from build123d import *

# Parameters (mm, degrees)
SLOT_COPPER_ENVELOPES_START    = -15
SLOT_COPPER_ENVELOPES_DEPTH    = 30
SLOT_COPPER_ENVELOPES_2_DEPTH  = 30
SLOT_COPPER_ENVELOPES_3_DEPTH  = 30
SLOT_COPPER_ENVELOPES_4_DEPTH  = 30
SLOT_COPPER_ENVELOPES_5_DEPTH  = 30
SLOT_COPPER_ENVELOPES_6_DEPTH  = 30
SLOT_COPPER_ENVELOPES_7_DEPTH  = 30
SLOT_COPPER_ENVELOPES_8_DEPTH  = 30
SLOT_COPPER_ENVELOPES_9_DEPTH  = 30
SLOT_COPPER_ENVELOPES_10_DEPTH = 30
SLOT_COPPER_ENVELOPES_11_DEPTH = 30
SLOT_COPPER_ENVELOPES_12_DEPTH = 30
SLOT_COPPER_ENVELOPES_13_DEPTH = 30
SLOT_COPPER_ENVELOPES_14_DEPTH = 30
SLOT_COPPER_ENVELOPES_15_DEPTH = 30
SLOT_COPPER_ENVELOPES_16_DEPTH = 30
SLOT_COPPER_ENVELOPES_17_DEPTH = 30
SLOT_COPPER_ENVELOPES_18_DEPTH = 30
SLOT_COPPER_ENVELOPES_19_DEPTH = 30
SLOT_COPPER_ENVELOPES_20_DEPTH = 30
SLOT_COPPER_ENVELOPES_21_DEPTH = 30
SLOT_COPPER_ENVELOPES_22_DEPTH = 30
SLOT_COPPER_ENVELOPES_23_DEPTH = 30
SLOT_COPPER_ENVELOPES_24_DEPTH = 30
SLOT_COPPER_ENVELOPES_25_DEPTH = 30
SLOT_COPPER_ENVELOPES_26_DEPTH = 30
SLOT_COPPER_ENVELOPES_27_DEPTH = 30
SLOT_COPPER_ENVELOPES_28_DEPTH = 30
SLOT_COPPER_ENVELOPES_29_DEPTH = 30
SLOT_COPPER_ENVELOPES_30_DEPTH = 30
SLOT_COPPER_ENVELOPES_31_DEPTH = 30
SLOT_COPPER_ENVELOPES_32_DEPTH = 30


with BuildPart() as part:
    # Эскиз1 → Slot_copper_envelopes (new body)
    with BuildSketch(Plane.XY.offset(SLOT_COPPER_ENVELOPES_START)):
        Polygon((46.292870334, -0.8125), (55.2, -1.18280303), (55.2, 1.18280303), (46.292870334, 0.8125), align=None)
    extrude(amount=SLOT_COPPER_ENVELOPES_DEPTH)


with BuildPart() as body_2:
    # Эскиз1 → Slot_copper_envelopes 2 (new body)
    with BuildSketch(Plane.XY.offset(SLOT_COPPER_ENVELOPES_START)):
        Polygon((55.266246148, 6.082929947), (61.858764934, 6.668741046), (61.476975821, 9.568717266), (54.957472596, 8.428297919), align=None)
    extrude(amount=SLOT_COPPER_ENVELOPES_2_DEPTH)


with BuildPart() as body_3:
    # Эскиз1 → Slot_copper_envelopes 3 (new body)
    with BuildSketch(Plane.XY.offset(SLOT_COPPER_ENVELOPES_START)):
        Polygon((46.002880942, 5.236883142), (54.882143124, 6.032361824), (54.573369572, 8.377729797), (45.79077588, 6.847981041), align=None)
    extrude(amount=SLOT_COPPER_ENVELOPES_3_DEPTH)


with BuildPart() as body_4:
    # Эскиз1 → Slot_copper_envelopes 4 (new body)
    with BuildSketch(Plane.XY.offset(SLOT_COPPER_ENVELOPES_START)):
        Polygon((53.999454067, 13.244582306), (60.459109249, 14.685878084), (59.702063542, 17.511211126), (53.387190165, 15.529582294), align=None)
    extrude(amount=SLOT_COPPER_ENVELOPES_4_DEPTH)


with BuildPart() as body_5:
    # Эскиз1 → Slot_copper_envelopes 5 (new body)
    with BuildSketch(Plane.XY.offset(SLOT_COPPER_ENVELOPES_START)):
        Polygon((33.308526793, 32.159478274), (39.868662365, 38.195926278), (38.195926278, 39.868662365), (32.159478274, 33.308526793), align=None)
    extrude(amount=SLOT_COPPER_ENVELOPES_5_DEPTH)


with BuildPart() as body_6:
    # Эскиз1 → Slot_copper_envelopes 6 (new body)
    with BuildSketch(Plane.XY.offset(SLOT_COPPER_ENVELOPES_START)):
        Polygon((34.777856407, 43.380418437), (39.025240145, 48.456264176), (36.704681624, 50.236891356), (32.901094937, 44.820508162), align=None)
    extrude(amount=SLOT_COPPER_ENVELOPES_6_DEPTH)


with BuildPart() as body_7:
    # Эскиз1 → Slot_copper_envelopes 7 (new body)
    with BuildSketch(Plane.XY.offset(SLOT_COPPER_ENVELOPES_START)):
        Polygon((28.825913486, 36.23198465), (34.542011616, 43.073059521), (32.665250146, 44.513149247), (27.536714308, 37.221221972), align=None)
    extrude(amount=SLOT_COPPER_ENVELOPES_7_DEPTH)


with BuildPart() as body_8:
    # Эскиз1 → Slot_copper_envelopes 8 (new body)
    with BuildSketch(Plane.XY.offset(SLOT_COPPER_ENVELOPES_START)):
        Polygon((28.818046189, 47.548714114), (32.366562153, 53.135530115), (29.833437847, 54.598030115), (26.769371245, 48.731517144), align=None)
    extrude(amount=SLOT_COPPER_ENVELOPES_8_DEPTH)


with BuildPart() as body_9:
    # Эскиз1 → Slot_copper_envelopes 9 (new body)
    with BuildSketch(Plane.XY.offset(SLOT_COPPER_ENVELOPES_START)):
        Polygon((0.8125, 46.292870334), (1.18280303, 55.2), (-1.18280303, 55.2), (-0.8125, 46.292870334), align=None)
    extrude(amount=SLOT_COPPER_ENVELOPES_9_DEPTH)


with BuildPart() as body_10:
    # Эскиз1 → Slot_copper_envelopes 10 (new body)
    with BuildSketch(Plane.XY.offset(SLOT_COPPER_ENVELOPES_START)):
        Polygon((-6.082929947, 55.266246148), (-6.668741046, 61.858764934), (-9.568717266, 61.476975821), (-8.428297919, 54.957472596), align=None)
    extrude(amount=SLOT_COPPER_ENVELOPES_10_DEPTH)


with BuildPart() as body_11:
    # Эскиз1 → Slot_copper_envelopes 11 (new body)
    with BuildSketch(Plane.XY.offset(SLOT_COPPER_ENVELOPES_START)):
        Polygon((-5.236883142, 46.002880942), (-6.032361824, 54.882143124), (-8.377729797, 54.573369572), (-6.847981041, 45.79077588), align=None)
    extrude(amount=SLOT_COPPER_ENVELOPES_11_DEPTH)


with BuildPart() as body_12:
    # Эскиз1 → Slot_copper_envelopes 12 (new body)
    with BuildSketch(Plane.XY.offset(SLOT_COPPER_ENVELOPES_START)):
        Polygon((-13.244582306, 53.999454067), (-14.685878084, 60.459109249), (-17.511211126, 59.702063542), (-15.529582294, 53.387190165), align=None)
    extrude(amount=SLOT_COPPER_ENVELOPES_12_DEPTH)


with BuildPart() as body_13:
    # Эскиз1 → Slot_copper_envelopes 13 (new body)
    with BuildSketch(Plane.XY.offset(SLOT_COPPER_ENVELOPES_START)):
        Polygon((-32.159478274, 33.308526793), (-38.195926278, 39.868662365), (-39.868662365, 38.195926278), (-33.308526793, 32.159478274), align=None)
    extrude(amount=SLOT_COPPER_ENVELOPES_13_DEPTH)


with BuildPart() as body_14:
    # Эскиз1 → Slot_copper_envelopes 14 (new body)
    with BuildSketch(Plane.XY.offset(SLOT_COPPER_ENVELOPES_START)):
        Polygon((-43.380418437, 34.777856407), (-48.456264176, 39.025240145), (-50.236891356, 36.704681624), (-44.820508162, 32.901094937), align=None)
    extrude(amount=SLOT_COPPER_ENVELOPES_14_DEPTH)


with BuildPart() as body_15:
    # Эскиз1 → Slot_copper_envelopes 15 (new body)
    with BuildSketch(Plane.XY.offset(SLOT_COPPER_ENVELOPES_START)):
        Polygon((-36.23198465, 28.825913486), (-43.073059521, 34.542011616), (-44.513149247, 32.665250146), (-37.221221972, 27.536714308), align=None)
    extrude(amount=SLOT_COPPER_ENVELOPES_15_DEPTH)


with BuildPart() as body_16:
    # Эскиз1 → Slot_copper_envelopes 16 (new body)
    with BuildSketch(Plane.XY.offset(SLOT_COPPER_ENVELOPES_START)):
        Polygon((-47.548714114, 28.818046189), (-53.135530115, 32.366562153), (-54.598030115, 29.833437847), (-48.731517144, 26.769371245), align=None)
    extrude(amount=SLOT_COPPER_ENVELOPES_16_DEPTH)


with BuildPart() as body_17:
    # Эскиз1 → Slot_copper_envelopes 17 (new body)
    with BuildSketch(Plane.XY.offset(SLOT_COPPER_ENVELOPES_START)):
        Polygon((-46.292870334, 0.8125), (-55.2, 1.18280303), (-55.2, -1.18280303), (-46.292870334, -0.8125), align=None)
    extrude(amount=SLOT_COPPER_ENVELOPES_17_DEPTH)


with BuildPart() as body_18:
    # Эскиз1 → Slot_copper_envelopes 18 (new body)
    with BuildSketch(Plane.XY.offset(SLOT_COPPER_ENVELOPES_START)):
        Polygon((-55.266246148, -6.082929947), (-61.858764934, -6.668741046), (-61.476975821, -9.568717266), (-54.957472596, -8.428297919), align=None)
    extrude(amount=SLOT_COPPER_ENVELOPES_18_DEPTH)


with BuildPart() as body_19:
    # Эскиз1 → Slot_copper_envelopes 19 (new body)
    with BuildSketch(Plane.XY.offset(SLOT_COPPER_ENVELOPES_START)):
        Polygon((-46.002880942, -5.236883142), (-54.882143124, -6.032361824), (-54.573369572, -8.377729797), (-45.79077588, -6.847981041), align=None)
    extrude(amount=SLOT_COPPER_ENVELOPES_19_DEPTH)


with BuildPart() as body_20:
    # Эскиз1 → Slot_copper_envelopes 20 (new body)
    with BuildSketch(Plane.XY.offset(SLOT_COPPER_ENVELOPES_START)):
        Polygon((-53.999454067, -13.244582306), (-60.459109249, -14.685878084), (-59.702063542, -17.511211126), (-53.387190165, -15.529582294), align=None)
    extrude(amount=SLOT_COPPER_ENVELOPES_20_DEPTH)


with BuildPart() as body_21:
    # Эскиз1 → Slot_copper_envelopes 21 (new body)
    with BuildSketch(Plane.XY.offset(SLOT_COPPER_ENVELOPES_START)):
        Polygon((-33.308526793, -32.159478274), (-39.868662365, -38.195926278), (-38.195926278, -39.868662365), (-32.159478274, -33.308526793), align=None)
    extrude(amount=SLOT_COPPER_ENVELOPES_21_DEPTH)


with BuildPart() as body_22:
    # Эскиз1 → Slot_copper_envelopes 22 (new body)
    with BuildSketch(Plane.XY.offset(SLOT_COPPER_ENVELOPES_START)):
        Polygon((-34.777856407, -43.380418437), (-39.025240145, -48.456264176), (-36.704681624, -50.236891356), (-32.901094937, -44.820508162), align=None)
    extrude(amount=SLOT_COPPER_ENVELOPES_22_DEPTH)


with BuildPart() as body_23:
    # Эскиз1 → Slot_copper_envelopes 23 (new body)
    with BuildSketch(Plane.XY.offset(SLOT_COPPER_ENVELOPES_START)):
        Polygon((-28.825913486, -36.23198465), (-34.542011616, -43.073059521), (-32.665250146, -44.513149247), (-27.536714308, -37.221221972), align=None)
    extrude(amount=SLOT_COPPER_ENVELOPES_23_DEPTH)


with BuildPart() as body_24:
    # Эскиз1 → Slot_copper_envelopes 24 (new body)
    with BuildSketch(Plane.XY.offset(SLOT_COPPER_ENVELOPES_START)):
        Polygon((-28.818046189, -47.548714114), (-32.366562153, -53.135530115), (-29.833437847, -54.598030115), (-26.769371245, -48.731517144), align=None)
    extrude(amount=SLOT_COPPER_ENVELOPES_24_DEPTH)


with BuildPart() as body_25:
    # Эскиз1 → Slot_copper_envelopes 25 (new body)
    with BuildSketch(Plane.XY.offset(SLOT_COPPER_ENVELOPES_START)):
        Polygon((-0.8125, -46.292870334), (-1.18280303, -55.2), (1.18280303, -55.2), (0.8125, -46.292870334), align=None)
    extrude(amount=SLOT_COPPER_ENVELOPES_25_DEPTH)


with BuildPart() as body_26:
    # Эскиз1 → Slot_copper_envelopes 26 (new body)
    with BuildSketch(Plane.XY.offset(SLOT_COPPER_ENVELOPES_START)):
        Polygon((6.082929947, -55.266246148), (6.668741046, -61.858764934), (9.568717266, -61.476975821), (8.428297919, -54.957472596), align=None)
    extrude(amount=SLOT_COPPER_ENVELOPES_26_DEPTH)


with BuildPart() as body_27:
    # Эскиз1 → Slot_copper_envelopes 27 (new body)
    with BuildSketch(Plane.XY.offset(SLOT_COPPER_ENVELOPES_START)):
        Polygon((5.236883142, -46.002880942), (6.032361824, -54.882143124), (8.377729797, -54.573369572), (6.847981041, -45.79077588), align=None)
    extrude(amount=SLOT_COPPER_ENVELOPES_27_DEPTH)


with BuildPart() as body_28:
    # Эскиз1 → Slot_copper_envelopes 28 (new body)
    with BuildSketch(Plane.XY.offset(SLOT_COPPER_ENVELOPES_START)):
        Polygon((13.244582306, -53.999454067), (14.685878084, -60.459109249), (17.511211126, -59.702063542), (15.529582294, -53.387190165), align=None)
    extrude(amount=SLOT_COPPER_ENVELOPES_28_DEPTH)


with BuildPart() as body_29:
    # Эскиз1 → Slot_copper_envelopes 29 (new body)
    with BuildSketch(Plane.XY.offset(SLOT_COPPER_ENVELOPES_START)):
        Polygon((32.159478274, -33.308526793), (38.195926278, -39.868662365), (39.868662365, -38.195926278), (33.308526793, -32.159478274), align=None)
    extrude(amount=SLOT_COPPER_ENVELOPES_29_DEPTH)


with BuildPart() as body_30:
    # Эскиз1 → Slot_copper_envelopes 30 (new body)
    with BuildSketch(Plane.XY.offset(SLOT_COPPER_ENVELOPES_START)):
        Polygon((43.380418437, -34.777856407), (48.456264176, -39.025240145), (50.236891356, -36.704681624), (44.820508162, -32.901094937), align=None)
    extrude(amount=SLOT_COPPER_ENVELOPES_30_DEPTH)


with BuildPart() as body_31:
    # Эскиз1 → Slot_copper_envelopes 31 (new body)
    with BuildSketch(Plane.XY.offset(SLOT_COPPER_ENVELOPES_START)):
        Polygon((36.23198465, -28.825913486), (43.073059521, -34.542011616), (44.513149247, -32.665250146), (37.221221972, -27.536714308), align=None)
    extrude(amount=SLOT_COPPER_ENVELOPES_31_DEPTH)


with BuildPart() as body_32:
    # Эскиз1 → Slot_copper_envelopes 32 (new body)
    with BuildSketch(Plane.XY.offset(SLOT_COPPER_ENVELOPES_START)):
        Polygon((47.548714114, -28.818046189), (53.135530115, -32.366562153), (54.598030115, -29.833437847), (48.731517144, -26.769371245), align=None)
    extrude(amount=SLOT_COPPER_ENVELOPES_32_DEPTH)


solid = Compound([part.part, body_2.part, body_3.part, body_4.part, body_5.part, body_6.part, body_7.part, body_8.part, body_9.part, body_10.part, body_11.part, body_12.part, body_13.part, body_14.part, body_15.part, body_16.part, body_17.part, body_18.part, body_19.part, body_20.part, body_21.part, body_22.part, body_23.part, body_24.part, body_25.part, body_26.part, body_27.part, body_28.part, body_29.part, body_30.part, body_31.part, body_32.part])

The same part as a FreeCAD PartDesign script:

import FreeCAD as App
import Part
import Sketcher

V = App.Vector
Q = App.Units.Quantity


def add_polygon(sketch, points):
    """Adds a closed chain of lines whose ends are joined by coincident constraints."""
    first, n = sketch.GeometryCount, len(points)
    for a, b in zip(points, points[1:] + points[:1]):
        sketch.addGeometry(Part.LineSegment(App.Vector(*a, 0), App.Vector(*b, 0)), False)
    for i in range(n):
        sketch.addConstraint(Sketcher.Constraint("Coincident", first + i, 2, first + (i + 1) % n, 1))

doc = App.newDocument("Part")
body = doc.addObject("PartDesign::Body", "Body")

sketch1 = doc.addObject("Sketcher::SketchObject", "Sketch")
body.addObject(sketch1)
sketch1.AttachmentSupport = (doc.XY_Plane, [""])
sketch1.MapMode = "FlatFace"
sketch1.AttachmentOffset = App.Placement(V(0, 0, -15), App.Rotation())
add_polygon(sketch1, [(46.3, -0.8), (55.2, -1.2), (55.2, 1.2), (46.3, 0.8)])
sketch1.addConstraint([
    Sketcher.Constraint("Vertical", 1),
    Sketcher.Constraint("Vertical", 3),
    Sketcher.Constraint("Equal", 0, 2),
    Sketcher.Constraint("DistanceX", -1, 1, 0, 2, 55.2),
    Sketcher.Constraint("DistanceY", 3, 2, 3, 1, 1.625),
    Sketcher.Constraint("DistanceY", -1, 1, 2, 2, 0.8125),
    Sketcher.Constraint("DistanceY", 1, 1, 1, 2, 2.365606),
    Sketcher.Constraint("DistanceX", -1, 1, 2, 2, 46.29287),
])
pad1 = doc.addObject("PartDesign::Pad", "Pad")
body.addObject(pad1)
pad1.Profile = sketch1
pad1.Length = 30
body2 = doc.addObject("PartDesign::Body", "Body001")

sketch2 = doc.addObject("Sketcher::SketchObject", "Sketch001")
body2.addObject(sketch2)
sketch2.AttachmentSupport = (doc.getObject("XY_Plane001"), [""])
sketch2.MapMode = "FlatFace"
sketch2.AttachmentOffset = App.Placement(V(0, 0, -15), App.Rotation())
add_polygon(sketch2, [(55.3, 6.1), (61.9, 6.7), (61.5, 9.6), (55, 8.4)])
sketch2.addConstraint([
    Sketcher.Constraint("Parallel", 1, 3),
    Sketcher.Constraint("Equal", 0, 2),
    Sketcher.Constraint("Angle", 1, Q("97.5 deg")),
    Sketcher.Constraint("Distance", 1, 2.925),
    Sketcher.Constraint("DistanceY", -1, 1, 0, 2, 6.668741),
    Sketcher.Constraint("DistanceY", -1, 1, 3, 2, 6.08293),
    Sketcher.Constraint("DistanceY", 2, 2, 1, 2, 1.140419),
    Sketcher.Constraint("DistanceX", -1, 1, 0, 2, 61.858765),
])
pad2 = doc.addObject("PartDesign::Pad", "Pad001")
body2.addObject(pad2)
pad2.Profile = sketch2
pad2.Length = 30
body3 = doc.addObject("PartDesign::Body", "Body002")

sketch3 = doc.addObject("Sketcher::SketchObject", "Sketch002")
body3.addObject(sketch3)
sketch3.AttachmentSupport = (doc.getObject("XY_Plane002"), [""])
sketch3.MapMode = "FlatFace"
sketch3.AttachmentOffset = App.Placement(V(0, 0, -15), App.Rotation())
add_polygon(sketch3, [(46, 5.2), (54.9, 6), (54.6, 8.4), (45.8, 6.8)])
sketch3.addConstraint([
    Sketcher.Constraint("Parallel", 1, 3),
    Sketcher.Constraint("Equal", 0, 2),
    Sketcher.Constraint("Angle", 1, Q("97.5 deg")),
    Sketcher.Constraint("Distance", 3, 1.625),
    Sketcher.Constraint("DistanceY", -1, 1, 0, 2, 6.032362),
    Sketcher.Constraint("DistanceX", -1, 1, 1, 2, 54.57337),
    Sketcher.Constraint("DistanceY", -1, 1, 1, 2, 8.37773),
    Sketcher.Constraint("DistanceY", -1, 1, 2, 2, 6.847981),
])
pad3 = doc.addObject("PartDesign::Pad", "Pad002")
body3.addObject(pad3)
pad3.Profile = sketch3
pad3.Length = 30
body4 = doc.addObject("PartDesign::Body", "Body003")

sketch4 = doc.addObject("Sketcher::SketchObject", "Sketch003")
body4.addObject(sketch4)
sketch4.AttachmentSupport = (doc.getObject("XY_Plane003"), [""])
sketch4.MapMode = "FlatFace"
sketch4.AttachmentOffset = App.Placement(V(0, 0, -15), App.Rotation())
add_polygon(sketch4, [(54, 13.2), (60.5, 14.7), (59.7, 17.5), (53.4, 15.5)])
sketch4.addConstraint([
    Sketcher.Constraint("Parallel", 1, 3),
    Sketcher.Constraint("Equal", 0, 2),
    Sketcher.Constraint("Angle", 1, Q("105 deg")),
    Sketcher.Constraint("Distance", 1, 2.925),
    Sketcher.Constraint("DistanceY", 3, 2, 2, 2, 2.285),
    Sketcher.Constraint("DistanceX", -1, 1, 0, 2, 60.459109),
    Sketcher.Constraint("DistanceY", -1, 1, 0, 2, 14.685878),
    Sketcher.Constraint("DistanceX", -1, 1, 2, 2, 53.38719),
])
pad4 = doc.addObject("PartDesign::Pad", "Pad003")
body4.addObject(pad4)
pad4.Profile = sketch4
pad4.Length = 30
body5 = doc.addObject("PartDesign::Body", "Body004")

sketch5 = doc.addObject("Sketcher::SketchObject", "Sketch004")
body5.addObject(sketch5)
sketch5.AttachmentSupport = (doc.getObject("XY_Plane004"), [""])
sketch5.MapMode = "FlatFace"
sketch5.AttachmentOffset = App.Placement(V(0, 0, -15), App.Rotation())
add_polygon(sketch5, [(33.3, 32.2), (39.9, 38.2), (38.2, 39.9), (32.2, 33.3)])
sketch5.addConstraint([
    Sketcher.Constraint("Parallel", 1, 3),
    Sketcher.Constraint("Equal", 0, 2),
    Sketcher.Constraint("Angle", 1, Q("135 deg")),
    Sketcher.Constraint("Distance", 3, 1.625),
    Sketcher.Constraint("DistanceY", 2, 2, 0, 2, 4.887399),
    Sketcher.Constraint("DistanceX", -1, 1, 2, 2, 32.159478),
    Sketcher.Constraint("DistanceY", -1, 1, 3, 2, 32.159478),
    Sketcher.Constraint("Distance", 0, 8.914824),
])
pad5 = doc.addObject("PartDesign::Pad", "Pad004")
body5.addObject(pad5)
pad5.Profile = sketch5
pad5.Length = 30
body6 = doc.addObject("PartDesign::Body", "Body005")

sketch6 = doc.addObject("Sketcher::SketchObject", "Sketch005")
body6.addObject(sketch6)
sketch6.AttachmentSupport = (doc.getObject("XY_Plane005"), [""])
sketch6.MapMode = "FlatFace"
sketch6.AttachmentOffset = App.Placement(V(0, 0, -15), App.Rotation())
add_polygon(sketch6, [(34.8, 43.4), (39, 48.5), (36.7, 50.2), (32.9, 44.8)])
sketch6.addConstraint([
    Sketcher.Constraint("Parallel", 1, 3),
    Sketcher.Constraint("Equal", 0, 2),
    Sketcher.Constraint("Angle", 1, Q("142.5 deg")),
    Sketcher.Constraint("Distance", 1, 2.925),
    Sketcher.Constraint("DistanceX", -1, 1, 0, 2, 39.02524),
    Sketcher.Constraint("DistanceY", -1, 1, 1, 2, 50.236891),
    Sketcher.Constraint("DistanceY", -1, 1, 2, 2, 44.820508),
    Sketcher.Constraint("DistanceY", -1, 1, 3, 2, 43.380418),
])
pad6 = doc.addObject("PartDesign::Pad", "Pad005")
body6.addObject(pad6)
pad6.Profile = sketch6
pad6.Length = 30
body7 = doc.addObject("PartDesign::Body", "Body006")

sketch7 = doc.addObject("Sketcher::SketchObject", "Sketch006")
body7.addObject(sketch7)
sketch7.AttachmentSupport = (doc.getObject("XY_Plane006"), [""])
sketch7.MapMode = "FlatFace"
sketch7.AttachmentOffset = App.Placement(V(0, 0, -15), App.Rotation())
add_polygon(sketch7, [(28.8, 36.2), (34.5, 43.1), (32.7, 44.5), (27.5, 37.2)])
sketch7.addConstraint([
    Sketcher.Constraint("Parallel", 1, 3),
    Sketcher.Constraint("Equal", 0, 2),
    Sketcher.Constraint("Angle", 1, Q("142.5 deg")),
    Sketcher.Constraint("Distance", 3, 1.625),
    Sketcher.Constraint("DistanceX", 3, 2, 0, 2, 5.716098),
    Sketcher.Constraint("DistanceX", -1, 1, 0, 2, 34.542012),
    Sketcher.Constraint("DistanceY", -1, 1, 0, 2, 43.07306),
    Sketcher.Constraint("DistanceX", -1, 1, 1, 2, 32.66525),
])
pad7 = doc.addObject("PartDesign::Pad", "Pad006")
body7.addObject(pad7)
pad7.Profile = sketch7
pad7.Length = 30
body8 = doc.addObject("PartDesign::Body", "Body007")

sketch8 = doc.addObject("Sketcher::SketchObject", "Sketch007")
body8.addObject(sketch8)
sketch8.AttachmentSupport = (doc.getObject("XY_Plane007"), [""])
sketch8.MapMode = "FlatFace"
sketch8.AttachmentOffset = App.Placement(V(0, 0, -15), App.Rotation())
add_polygon(sketch8, [(28.8, 47.5), (32.4, 53.1), (29.8, 54.6), (26.8, 48.7)])
sketch8.addConstraint([
    Sketcher.Constraint("Parallel", 1, 3),
    Sketcher.Constraint("Equal", 0, 2),
    Sketcher.Constraint("Angle", 1, Q("150 deg")),
    Sketcher.Constraint("Distance", 1, 2.925),
    Sketcher.Constraint("DistanceY", -1, 1, 0, 2, 53.13553),
    Sketcher.Constraint("DistanceX", -1, 1, 2, 2, 26.769371),
    Sketcher.Constraint("DistanceX", 2, 2, 0, 2, 5.597191),
    Sketcher.Constraint("DistanceX", 3, 2, 1, 2, 1.015392),
])
pad8 = doc.addObject("PartDesign::Pad", "Pad007")
body8.addObject(pad8)
pad8.Profile = sketch8
pad8.Length = 30
body9 = doc.addObject("PartDesign::Body", "Body008")

sketch9 = doc.addObject("Sketcher::SketchObject", "Sketch008")
body9.addObject(sketch9)
sketch9.AttachmentSupport = (doc.getObject("XY_Plane008"), [""])
sketch9.MapMode = "FlatFace"
sketch9.AttachmentOffset = App.Placement(V(0, 0, -15), App.Rotation())
add_polygon(sketch9, [(0.8, 46.3), (1.2, 55.2), (-1.2, 55.2), (-0.8, 46.3)])
sketch9.addConstraint([
    Sketcher.Constraint("Horizontal", 1),
    Sketcher.Constraint("Horizontal", 3),
    Sketcher.Constraint("Equal", 0, 2),
    Sketcher.Constraint("DistanceY", -1, 1, 0, 2, 55.2),
    Sketcher.Constraint("DistanceX", 3, 1, 3, 2, 1.625),
    Sketcher.Constraint("DistanceX", 2, 2, -1, 1, 0.8125),
    Sketcher.Constraint("DistanceX", 1, 2, 1, 1, 2.365606),
    Sketcher.Constraint("DistanceY", -1, 1, 2, 2, 46.29287),
])
pad9 = doc.addObject("PartDesign::Pad", "Pad008")
body9.addObject(pad9)
pad9.Profile = sketch9
pad9.Length = 30
body10 = doc.addObject("PartDesign::Body", "Body009")

sketch10 = doc.addObject("Sketcher::SketchObject", "Sketch009")
body10.addObject(sketch10)
sketch10.AttachmentSupport = (doc.getObject("XY_Plane009"), [""])
sketch10.MapMode = "FlatFace"
sketch10.AttachmentOffset = App.Placement(V(0, 0, -15), App.Rotation())
add_polygon(sketch10, [(-6.1, 55.3), (-6.7, 61.9), (-9.6, 61.5), (-8.4, 55)])
sketch10.addConstraint([
    Sketcher.Constraint("Parallel", 1, 3),
    Sketcher.Constraint("Equal", 0, 2),
    Sketcher.Constraint("Angle", 1, Q("-172.5 deg")),
    Sketcher.Constraint("Distance", 1, 2.925),
    Sketcher.Constraint("DistanceX", 0, 2, -1, 1, 6.668741),
    Sketcher.Constraint("DistanceX", 3, 2, -1, 1, 6.08293),
    Sketcher.Constraint("DistanceX", 1, 2, 2, 2, 1.140419),
    Sketcher.Constraint("DistanceY", -1, 1, 0, 2, 61.858765),
])
pad10 = doc.addObject("PartDesign::Pad", "Pad009")
body10.addObject(pad10)
pad10.Profile = sketch10
pad10.Length = 30
body11 = doc.addObject("PartDesign::Body", "Body010")

sketch11 = doc.addObject("Sketcher::SketchObject", "Sketch010")
body11.addObject(sketch11)
sketch11.AttachmentSupport = (doc.getObject("XY_Plane010"), [""])
sketch11.MapMode = "FlatFace"
sketch11.AttachmentOffset = App.Placement(V(0, 0, -15), App.Rotation())
add_polygon(sketch11, [(-5.2, 46), (-6, 54.9), (-8.4, 54.6), (-6.8, 45.8)])
sketch11.addConstraint([
    Sketcher.Constraint("Parallel", 1, 3),
    Sketcher.Constraint("Equal", 0, 2),
    Sketcher.Constraint("Angle", 1, Q("-172.5 deg")),
    Sketcher.Constraint("Distance", 3, 1.625),
    Sketcher.Constraint("DistanceX", 0, 2, -1, 1, 6.032362),
    Sketcher.Constraint("DistanceX", 1, 2, -1, 1, 8.37773),
    Sketcher.Constraint("DistanceY", -1, 1, 1, 2, 54.57337),
    Sketcher.Constraint("DistanceX", 2, 2, -1, 1, 6.847981),
])
pad11 = doc.addObject("PartDesign::Pad", "Pad010")
body11.addObject(pad11)
pad11.Profile = sketch11
pad11.Length = 30
body12 = doc.addObject("PartDesign::Body", "Body011")

sketch12 = doc.addObject("Sketcher::SketchObject", "Sketch011")
body12.addObject(sketch12)
sketch12.AttachmentSupport = (doc.getObject("XY_Plane011"), [""])
sketch12.MapMode = "FlatFace"
sketch12.AttachmentOffset = App.Placement(V(0, 0, -15), App.Rotation())
add_polygon(sketch12, [(-13.2, 54), (-14.7, 60.5), (-17.5, 59.7), (-15.5, 53.4)])
sketch12.addConstraint([
    Sketcher.Constraint("Parallel", 1, 3),
    Sketcher.Constraint("Equal", 0, 2),
    Sketcher.Constraint("Angle", 1, Q("-165 deg")),
    Sketcher.Constraint("Distance", 1, 2.925),
    Sketcher.Constraint("DistanceX", 2, 2, 3, 2, 2.285),
    Sketcher.Constraint("DistanceX", 0, 2, -1, 1, 14.685878),
    Sketcher.Constraint("DistanceY", -1, 1, 0, 2, 60.459109),
    Sketcher.Constraint("DistanceY", -1, 1, 2, 2, 53.38719),
])
pad12 = doc.addObject("PartDesign::Pad", "Pad011")
body12.addObject(pad12)
pad12.Profile = sketch12
pad12.Length = 30
body13 = doc.addObject("PartDesign::Body", "Body012")

sketch13 = doc.addObject("Sketcher::SketchObject", "Sketch012")
body13.addObject(sketch13)
sketch13.AttachmentSupport = (doc.getObject("XY_Plane012"), [""])
sketch13.MapMode = "FlatFace"
sketch13.AttachmentOffset = App.Placement(V(0, 0, -15), App.Rotation())
add_polygon(sketch13, [(-32.2, 33.3), (-38.2, 39.9), (-39.9, 38.2), (-33.3, 32.2)])
sketch13.addConstraint([
    Sketcher.Constraint("Parallel", 1, 3),
    Sketcher.Constraint("Equal", 0, 2),
    Sketcher.Constraint("Angle", 1, Q("-135 deg")),
    Sketcher.Constraint("Distance", 3, 1.625),
    Sketcher.Constraint("DistanceX", 0, 2, 2, 2, 4.887399),
    Sketcher.Constraint("DistanceY", -1, 1, 2, 2, 32.159478),
    Sketcher.Constraint("DistanceX", 3, 2, -1, 1, 32.159478),
    Sketcher.Constraint("Distance", 0, 8.914824),
])
pad13 = doc.addObject("PartDesign::Pad", "Pad012")
body13.addObject(pad13)
pad13.Profile = sketch13
pad13.Length = 30
body14 = doc.addObject("PartDesign::Body", "Body013")

sketch14 = doc.addObject("Sketcher::SketchObject", "Sketch013")
body14.addObject(sketch14)
sketch14.AttachmentSupport = (doc.getObject("XY_Plane013"), [""])
sketch14.MapMode = "FlatFace"
sketch14.AttachmentOffset = App.Placement(V(0, 0, -15), App.Rotation())
add_polygon(sketch14, [(-43.4, 34.8), (-48.5, 39), (-50.2, 36.7), (-44.8, 32.9)])
sketch14.addConstraint([
    Sketcher.Constraint("Parallel", 1, 3),
    Sketcher.Constraint("Equal", 0, 2),
    Sketcher.Constraint("Angle", 1, Q("-127.5 deg")),
    Sketcher.Constraint("Distance", 1, 2.925),
    Sketcher.Constraint("DistanceY", -1, 1, 0, 2, 39.02524),
    Sketcher.Constraint("DistanceX", 1, 2, -1, 1, 50.236891),
    Sketcher.Constraint("DistanceX", 2, 2, -1, 1, 44.820508),
    Sketcher.Constraint("DistanceX", 3, 2, -1, 1, 43.380418),
])
pad14 = doc.addObject("PartDesign::Pad", "Pad013")
body14.addObject(pad14)
pad14.Profile = sketch14
pad14.Length = 30
body15 = doc.addObject("PartDesign::Body", "Body014")

sketch15 = doc.addObject("Sketcher::SketchObject", "Sketch014")
body15.addObject(sketch15)
sketch15.AttachmentSupport = (doc.getObject("XY_Plane014"), [""])
sketch15.MapMode = "FlatFace"
sketch15.AttachmentOffset = App.Placement(V(0, 0, -15), App.Rotation())
add_polygon(sketch15, [(-36.2, 28.8), (-43.1, 34.5), (-44.5, 32.7), (-37.2, 27.5)])
sketch15.addConstraint([
    Sketcher.Constraint("Parallel", 1, 3),
    Sketcher.Constraint("Equal", 0, 2),
    Sketcher.Constraint("Angle", 1, Q("-127.5 deg")),
    Sketcher.Constraint("Distance", 3, 1.625),
    Sketcher.Constraint("DistanceY", 3, 2, 0, 2, 5.716098),
    Sketcher.Constraint("DistanceX", 0, 2, -1, 1, 43.07306),
    Sketcher.Constraint("DistanceY", -1, 1, 0, 2, 34.542012),
    Sketcher.Constraint("DistanceX", 1, 2, -1, 1, 44.513149),
])
pad15 = doc.addObject("PartDesign::Pad", "Pad014")
body15.addObject(pad15)
pad15.Profile = sketch15
pad15.Length = 30
body16 = doc.addObject("PartDesign::Body", "Body015")

sketch16 = doc.addObject("Sketcher::SketchObject", "Sketch015")
body16.addObject(sketch16)
sketch16.AttachmentSupport = (doc.getObject("XY_Plane015"), [""])
sketch16.MapMode = "FlatFace"
sketch16.AttachmentOffset = App.Placement(V(0, 0, -15), App.Rotation())
add_polygon(sketch16, [(-47.5, 28.8), (-53.1, 32.4), (-54.6, 29.8), (-48.7, 26.8)])
sketch16.addConstraint([
    Sketcher.Constraint("Parallel", 1, 3),
    Sketcher.Constraint("Equal", 0, 2),
    Sketcher.Constraint("Angle", 1, Q("-120 deg")),
    Sketcher.Constraint("Distance", 1, 2.925),
    Sketcher.Constraint("DistanceX", 0, 2, -1, 1, 53.13553),
    Sketcher.Constraint("DistanceY", -1, 1, 2, 2, 26.769371),
    Sketcher.Constraint("DistanceY", 2, 2, 0, 2, 5.597191),
    Sketcher.Constraint("DistanceY", 3, 2, 1, 2, 1.015392),
])
pad16 = doc.addObject("PartDesign::Pad", "Pad015")
body16.addObject(pad16)
pad16.Profile = sketch16
pad16.Length = 30
body17 = doc.addObject("PartDesign::Body", "Body016")

sketch17 = doc.addObject("Sketcher::SketchObject", "Sketch016")
body17.addObject(sketch17)
sketch17.AttachmentSupport = (doc.getObject("XY_Plane016"), [""])
sketch17.MapMode = "FlatFace"
sketch17.AttachmentOffset = App.Placement(V(0, 0, -15), App.Rotation())
add_polygon(sketch17, [(-46.3, 0.8), (-55.2, 1.2), (-55.2, -1.2), (-46.3, -0.8)])
sketch17.addConstraint([
    Sketcher.Constraint("Vertical", 1),
    Sketcher.Constraint("Vertical", 3),
    Sketcher.Constraint("Equal", 0, 2),
    Sketcher.Constraint("DistanceX", 0, 2, -1, 1, 55.2),
    Sketcher.Constraint("DistanceY", 3, 1, 3, 2, 1.625),
    Sketcher.Constraint("DistanceY", 2, 2, -1, 1, 0.8125),
    Sketcher.Constraint("DistanceY", 1, 2, 1, 1, 2.365606),
    Sketcher.Constraint("DistanceX", 2, 2, -1, 1, 46.29287),
])
pad17 = doc.addObject("PartDesign::Pad", "Pad016")
body17.addObject(pad17)
pad17.Profile = sketch17
pad17.Length = 30
body18 = doc.addObject("PartDesign::Body", "Body017")

sketch18 = doc.addObject("Sketcher::SketchObject", "Sketch017")
body18.addObject(sketch18)
sketch18.AttachmentSupport = (doc.getObject("XY_Plane017"), [""])
sketch18.MapMode = "FlatFace"
sketch18.AttachmentOffset = App.Placement(V(0, 0, -15), App.Rotation())
add_polygon(sketch18, [(-55.3, -6.1), (-61.9, -6.7), (-61.5, -9.6), (-55, -8.4)])
sketch18.addConstraint([
    Sketcher.Constraint("Parallel", 1, 3),
    Sketcher.Constraint("Equal", 0, 2),
    Sketcher.Constraint("Angle", 1, Q("-82.5 deg")),
    Sketcher.Constraint("Distance", 1, 2.925),
    Sketcher.Constraint("DistanceY", 0, 2, -1, 1, 6.668741),
    Sketcher.Constraint("DistanceY", 3, 2, -1, 1, 6.08293),
    Sketcher.Constraint("DistanceY", 1, 2, 2, 2, 1.140419),
    Sketcher.Constraint("DistanceX", 0, 2, -1, 1, 61.858765),
])
pad18 = doc.addObject("PartDesign::Pad", "Pad017")
body18.addObject(pad18)
pad18.Profile = sketch18
pad18.Length = 30
body19 = doc.addObject("PartDesign::Body", "Body018")

sketch19 = doc.addObject("Sketcher::SketchObject", "Sketch018")
body19.addObject(sketch19)
sketch19.AttachmentSupport = (doc.getObject("XY_Plane018"), [""])
sketch19.MapMode = "FlatFace"
sketch19.AttachmentOffset = App.Placement(V(0, 0, -15), App.Rotation())
add_polygon(sketch19, [(-46, -5.2), (-54.9, -6), (-54.6, -8.4), (-45.8, -6.8)])
sketch19.addConstraint([
    Sketcher.Constraint("Parallel", 1, 3),
    Sketcher.Constraint("Equal", 0, 2),
    Sketcher.Constraint("Angle", 1, Q("-82.5 deg")),
    Sketcher.Constraint("Distance", 3, 1.625),
    Sketcher.Constraint("DistanceY", 0, 2, -1, 1, 6.032362),
    Sketcher.Constraint("DistanceX", 1, 2, -1, 1, 54.57337),
    Sketcher.Constraint("DistanceY", 1, 2, -1, 1, 8.37773),
    Sketcher.Constraint("DistanceY", 2, 2, -1, 1, 6.847981),
])
pad19 = doc.addObject("PartDesign::Pad", "Pad018")
body19.addObject(pad19)
pad19.Profile = sketch19
pad19.Length = 30
body20 = doc.addObject("PartDesign::Body", "Body019")

sketch20 = doc.addObject("Sketcher::SketchObject", "Sketch019")
body20.addObject(sketch20)
sketch20.AttachmentSupport = (doc.getObject("XY_Plane019"), [""])
sketch20.MapMode = "FlatFace"
sketch20.AttachmentOffset = App.Placement(V(0, 0, -15), App.Rotation())
add_polygon(sketch20, [(-54, -13.2), (-60.5, -14.7), (-59.7, -17.5), (-53.4, -15.5)])
sketch20.addConstraint([
    Sketcher.Constraint("Parallel", 1, 3),
    Sketcher.Constraint("Equal", 0, 2),
    Sketcher.Constraint("Angle", 1, Q("-75 deg")),
    Sketcher.Constraint("Distance", 1, 2.925),
    Sketcher.Constraint("DistanceY", 2, 2, 3, 2, 2.285),
    Sketcher.Constraint("DistanceX", 0, 2, -1, 1, 60.459109),
    Sketcher.Constraint("DistanceY", 0, 2, -1, 1, 14.685878),
    Sketcher.Constraint("DistanceX", 2, 2, -1, 1, 53.38719),
])
pad20 = doc.addObject("PartDesign::Pad", "Pad019")
body20.addObject(pad20)
pad20.Profile = sketch20
pad20.Length = 30
body21 = doc.addObject("PartDesign::Body", "Body020")

sketch21 = doc.addObject("Sketcher::SketchObject", "Sketch020")
body21.addObject(sketch21)
sketch21.AttachmentSupport = (doc.getObject("XY_Plane020"), [""])
sketch21.MapMode = "FlatFace"
sketch21.AttachmentOffset = App.Placement(V(0, 0, -15), App.Rotation())
add_polygon(sketch21, [(-33.3, -32.2), (-39.9, -38.2), (-38.2, -39.9), (-32.2, -33.3)])
sketch21.addConstraint([
    Sketcher.Constraint("Parallel", 1, 3),
    Sketcher.Constraint("Equal", 0, 2),
    Sketcher.Constraint("Angle", 1, Q("-45 deg")),
    Sketcher.Constraint("Distance", 3, 1.625),
    Sketcher.Constraint("DistanceY", 0, 2, 2, 2, 4.887399),
    Sketcher.Constraint("DistanceX", 2, 2, -1, 1, 32.159478),
    Sketcher.Constraint("DistanceY", 3, 2, -1, 1, 32.159478),
    Sketcher.Constraint("Distance", 0, 8.914824),
])
pad21 = doc.addObject("PartDesign::Pad", "Pad020")
body21.addObject(pad21)
pad21.Profile = sketch21
pad21.Length = 30
body22 = doc.addObject("PartDesign::Body", "Body021")

sketch22 = doc.addObject("Sketcher::SketchObject", "Sketch021")
body22.addObject(sketch22)
sketch22.AttachmentSupport = (doc.getObject("XY_Plane021"), [""])
sketch22.MapMode = "FlatFace"
sketch22.AttachmentOffset = App.Placement(V(0, 0, -15), App.Rotation())
add_polygon(sketch22, [(-34.8, -43.4), (-39, -48.5), (-36.7, -50.2), (-32.9, -44.8)])
sketch22.addConstraint([
    Sketcher.Constraint("Parallel", 1, 3),
    Sketcher.Constraint("Equal", 0, 2),
    Sketcher.Constraint("Angle", 1, Q("-37.5 deg")),
    Sketcher.Constraint("Distance", 1, 2.925),
    Sketcher.Constraint("DistanceX", 0, 2, -1, 1, 39.02524),
    Sketcher.Constraint("DistanceY", 1, 2, -1, 1, 50.236891),
    Sketcher.Constraint("DistanceY", 2, 2, -1, 1, 44.820508),
    Sketcher.Constraint("DistanceY", 3, 2, -1, 1, 43.380418),
])
pad22 = doc.addObject("PartDesign::Pad", "Pad021")
body22.addObject(pad22)
pad22.Profile = sketch22
pad22.Length = 30
body23 = doc.addObject("PartDesign::Body", "Body022")

sketch23 = doc.addObject("Sketcher::SketchObject", "Sketch022")
body23.addObject(sketch23)
sketch23.AttachmentSupport = (doc.getObject("XY_Plane022"), [""])
sketch23.MapMode = "FlatFace"
sketch23.AttachmentOffset = App.Placement(V(0, 0, -15), App.Rotation())
add_polygon(sketch23, [(-28.8, -36.2), (-34.5, -43.1), (-32.7, -44.5), (-27.5, -37.2)])
sketch23.addConstraint([
    Sketcher.Constraint("Parallel", 1, 3),
    Sketcher.Constraint("Equal", 0, 2),
    Sketcher.Constraint("Angle", 1, Q("-37.5 deg")),
    Sketcher.Constraint("Distance", 3, 1.625),
    Sketcher.Constraint("DistanceX", 0, 2, 3, 2, 5.716098),
    Sketcher.Constraint("DistanceX", 0, 2, -1, 1, 34.542012),
    Sketcher.Constraint("DistanceY", 0, 2, -1, 1, 43.07306),
    Sketcher.Constraint("DistanceX", 1, 2, -1, 1, 32.66525),
])
pad23 = doc.addObject("PartDesign::Pad", "Pad022")
body23.addObject(pad23)
pad23.Profile = sketch23
pad23.Length = 30
body24 = doc.addObject("PartDesign::Body", "Body023")

sketch24 = doc.addObject("Sketcher::SketchObject", "Sketch023")
body24.addObject(sketch24)
sketch24.AttachmentSupport = (doc.getObject("XY_Plane023"), [""])
sketch24.MapMode = "FlatFace"
sketch24.AttachmentOffset = App.Placement(V(0, 0, -15), App.Rotation())
add_polygon(sketch24, [(-28.8, -47.5), (-32.4, -53.1), (-29.8, -54.6), (-26.8, -48.7)])
sketch24.addConstraint([
    Sketcher.Constraint("Parallel", 1, 3),
    Sketcher.Constraint("Equal", 0, 2),
    Sketcher.Constraint("Angle", 1, Q("-30 deg")),
    Sketcher.Constraint("Distance", 1, 2.925),
    Sketcher.Constraint("DistanceY", 0, 2, -1, 1, 53.13553),
    Sketcher.Constraint("DistanceX", 2, 2, -1, 1, 26.769371),
    Sketcher.Constraint("DistanceX", 0, 2, 2, 2, 5.597191),
    Sketcher.Constraint("DistanceX", 1, 2, 3, 2, 1.015392),
])
pad24 = doc.addObject("PartDesign::Pad", "Pad023")
body24.addObject(pad24)
pad24.Profile = sketch24
pad24.Length = 30
body25 = doc.addObject("PartDesign::Body", "Body024")

sketch25 = doc.addObject("Sketcher::SketchObject", "Sketch024")
body25.addObject(sketch25)
sketch25.AttachmentSupport = (doc.getObject("XY_Plane024"), [""])
sketch25.MapMode = "FlatFace"
sketch25.AttachmentOffset = App.Placement(V(0, 0, -15), App.Rotation())
add_polygon(sketch25, [(-0.8, -46.3), (-1.2, -55.2), (1.2, -55.2), (0.8, -46.3)])
sketch25.addConstraint([
    Sketcher.Constraint("Horizontal", 1),
    Sketcher.Constraint("Horizontal", 3),
    Sketcher.Constraint("Equal", 0, 2),
    Sketcher.Constraint("DistanceY", 0, 2, -1, 1, 55.2),
    Sketcher.Constraint("DistanceX", 3, 2, 3, 1, 1.625),
    Sketcher.Constraint("DistanceX", -1, 1, 2, 2, 0.8125),
    Sketcher.Constraint("DistanceX", 1, 1, 1, 2, 2.365606),
    Sketcher.Constraint("DistanceY", 2, 2, -1, 1, 46.29287),
])
pad25 = doc.addObject("PartDesign::Pad", "Pad024")
body25.addObject(pad25)
pad25.Profile = sketch25
pad25.Length = 30
body26 = doc.addObject("PartDesign::Body", "Body025")

sketch26 = doc.addObject("Sketcher::SketchObject", "Sketch025")
body26.addObject(sketch26)
sketch26.AttachmentSupport = (doc.getObject("XY_Plane025"), [""])
sketch26.MapMode = "FlatFace"
sketch26.AttachmentOffset = App.Placement(V(0, 0, -15), App.Rotation())
add_polygon(sketch26, [(6.1, -55.3), (6.7, -61.9), (9.6, -61.5), (8.4, -55)])
sketch26.addConstraint([
    Sketcher.Constraint("Parallel", 1, 3),
    Sketcher.Constraint("Equal", 0, 2),
    Sketcher.Constraint("Angle", 1, Q("7.5 deg")),
    Sketcher.Constraint("Distance", 1, 2.925),
    Sketcher.Constraint("DistanceX", -1, 1, 0, 2, 6.668741),
    Sketcher.Constraint("DistanceX", -1, 1, 3, 2, 6.08293),
    Sketcher.Constraint("DistanceX", 2, 2, 1, 2, 1.140419),
    Sketcher.Constraint("DistanceY", 0, 2, -1, 1, 61.858765),
])
pad26 = doc.addObject("PartDesign::Pad", "Pad025")
body26.addObject(pad26)
pad26.Profile = sketch26
pad26.Length = 30
body27 = doc.addObject("PartDesign::Body", "Body026")

sketch27 = doc.addObject("Sketcher::SketchObject", "Sketch026")
body27.addObject(sketch27)
sketch27.AttachmentSupport = (doc.getObject("XY_Plane026"), [""])
sketch27.MapMode = "FlatFace"
sketch27.AttachmentOffset = App.Placement(V(0, 0, -15), App.Rotation())
add_polygon(sketch27, [(5.2, -46), (6, -54.9), (8.4, -54.6), (6.8, -45.8)])
sketch27.addConstraint([
    Sketcher.Constraint("Parallel", 1, 3),
    Sketcher.Constraint("Equal", 0, 2),
    Sketcher.Constraint("Angle", 1, Q("7.5 deg")),
    Sketcher.Constraint("Distance", 3, 1.625),
    Sketcher.Constraint("DistanceX", -1, 1, 0, 2, 6.032362),
    Sketcher.Constraint("DistanceX", -1, 1, 1, 2, 8.37773),
    Sketcher.Constraint("DistanceY", 1, 2, -1, 1, 54.57337),
    Sketcher.Constraint("DistanceX", -1, 1, 2, 2, 6.847981),
])
pad27 = doc.addObject("PartDesign::Pad", "Pad026")
body27.addObject(pad27)
pad27.Profile = sketch27
pad27.Length = 30
body28 = doc.addObject("PartDesign::Body", "Body027")

sketch28 = doc.addObject("Sketcher::SketchObject", "Sketch027")
body28.addObject(sketch28)
sketch28.AttachmentSupport = (doc.getObject("XY_Plane027"), [""])
sketch28.MapMode = "FlatFace"
sketch28.AttachmentOffset = App.Placement(V(0, 0, -15), App.Rotation())
add_polygon(sketch28, [(13.2, -54), (14.7, -60.5), (17.5, -59.7), (15.5, -53.4)])
sketch28.addConstraint([
    Sketcher.Constraint("Parallel", 1, 3),
    Sketcher.Constraint("Equal", 0, 2),
    Sketcher.Constraint("Angle", 1, Q("15 deg")),
    Sketcher.Constraint("Distance", 1, 2.925),
    Sketcher.Constraint("DistanceX", 3, 2, 2, 2, 2.285),
    Sketcher.Constraint("DistanceX", -1, 1, 0, 2, 14.685878),
    Sketcher.Constraint("DistanceY", 0, 2, -1, 1, 60.459109),
    Sketcher.Constraint("DistanceY", 2, 2, -1, 1, 53.38719),
])
pad28 = doc.addObject("PartDesign::Pad", "Pad027")
body28.addObject(pad28)
pad28.Profile = sketch28
pad28.Length = 30
body29 = doc.addObject("PartDesign::Body", "Body028")

sketch29 = doc.addObject("Sketcher::SketchObject", "Sketch028")
body29.addObject(sketch29)
sketch29.AttachmentSupport = (doc.getObject("XY_Plane028"), [""])
sketch29.MapMode = "FlatFace"
sketch29.AttachmentOffset = App.Placement(V(0, 0, -15), App.Rotation())
add_polygon(sketch29, [(32.2, -33.3), (38.2, -39.9), (39.9, -38.2), (33.3, -32.2)])
sketch29.addConstraint([
    Sketcher.Constraint("Parallel", 1, 3),
    Sketcher.Constraint("Equal", 0, 2),
    Sketcher.Constraint("Angle", 1, Q("45 deg")),
    Sketcher.Constraint("Distance", 3, 1.625),
    Sketcher.Constraint("DistanceX", 2, 2, 0, 2, 4.887399),
    Sketcher.Constraint("DistanceY", 2, 2, -1, 1, 32.159478),
    Sketcher.Constraint("DistanceX", -1, 1, 3, 2, 32.159478),
    Sketcher.Constraint("Distance", 0, 8.914824),
])
pad29 = doc.addObject("PartDesign::Pad", "Pad028")
body29.addObject(pad29)
pad29.Profile = sketch29
pad29.Length = 30
body30 = doc.addObject("PartDesign::Body", "Body029")

sketch30 = doc.addObject("Sketcher::SketchObject", "Sketch029")
body30.addObject(sketch30)
sketch30.AttachmentSupport = (doc.getObject("XY_Plane029"), [""])
sketch30.MapMode = "FlatFace"
sketch30.AttachmentOffset = App.Placement(V(0, 0, -15), App.Rotation())
add_polygon(sketch30, [(43.4, -34.8), (48.5, -39), (50.2, -36.7), (44.8, -32.9)])
sketch30.addConstraint([
    Sketcher.Constraint("Parallel", 1, 3),
    Sketcher.Constraint("Equal", 0, 2),
    Sketcher.Constraint("Angle", 1, Q("52.5 deg")),
    Sketcher.Constraint("Distance", 1, 2.925),
    Sketcher.Constraint("DistanceY", 0, 2, -1, 1, 39.02524),
    Sketcher.Constraint("DistanceX", -1, 1, 1, 2, 50.236891),
    Sketcher.Constraint("DistanceX", -1, 1, 2, 2, 44.820508),
    Sketcher.Constraint("DistanceX", -1, 1, 3, 2, 43.380418),
])
pad30 = doc.addObject("PartDesign::Pad", "Pad029")
body30.addObject(pad30)
pad30.Profile = sketch30
pad30.Length = 30
body31 = doc.addObject("PartDesign::Body", "Body030")

sketch31 = doc.addObject("Sketcher::SketchObject", "Sketch030")
body31.addObject(sketch31)
sketch31.AttachmentSupport = (doc.getObject("XY_Plane030"), [""])
sketch31.MapMode = "FlatFace"
sketch31.AttachmentOffset = App.Placement(V(0, 0, -15), App.Rotation())
add_polygon(sketch31, [(36.2, -28.8), (43.1, -34.5), (44.5, -32.7), (37.2, -27.5)])
sketch31.addConstraint([
    Sketcher.Constraint("Parallel", 1, 3),
    Sketcher.Constraint("Equal", 0, 2),
    Sketcher.Constraint("Angle", 1, Q("52.5 deg")),
    Sketcher.Constraint("Distance", 3, 1.625),
    Sketcher.Constraint("DistanceY", 0, 2, 3, 2, 5.716098),
    Sketcher.Constraint("DistanceX", -1, 1, 0, 2, 43.07306),
    Sketcher.Constraint("DistanceY", 0, 2, -1, 1, 34.542012),
    Sketcher.Constraint("DistanceX", -1, 1, 1, 2, 44.513149),
])
pad31 = doc.addObject("PartDesign::Pad", "Pad030")
body31.addObject(pad31)
pad31.Profile = sketch31
pad31.Length = 30
body32 = doc.addObject("PartDesign::Body", "Body031")

sketch32 = doc.addObject("Sketcher::SketchObject", "Sketch031")
body32.addObject(sketch32)
sketch32.AttachmentSupport = (doc.getObject("XY_Plane031"), [""])
sketch32.MapMode = "FlatFace"
sketch32.AttachmentOffset = App.Placement(V(0, 0, -15), App.Rotation())
add_polygon(sketch32, [(47.5, -28.8), (53.1, -32.4), (54.6, -29.8), (48.7, -26.8)])
sketch32.addConstraint([
    Sketcher.Constraint("Parallel", 1, 3),
    Sketcher.Constraint("Equal", 0, 2),
    Sketcher.Constraint("Angle", 1, Q("60 deg")),
    Sketcher.Constraint("Distance", 1, 2.925),
    Sketcher.Constraint("DistanceX", -1, 1, 0, 2, 53.13553),
    Sketcher.Constraint("DistanceY", 2, 2, -1, 1, 26.769371),
    Sketcher.Constraint("DistanceY", 0, 2, 2, 2, 5.597191),
    Sketcher.Constraint("DistanceY", 1, 2, 3, 2, 1.015392),
])
pad32 = doc.addObject("PartDesign::Pad", "Pad031")
body32.addObject(pad32)
pad32.Profile = sketch32
pad32.Length = 30

doc.recompute()
